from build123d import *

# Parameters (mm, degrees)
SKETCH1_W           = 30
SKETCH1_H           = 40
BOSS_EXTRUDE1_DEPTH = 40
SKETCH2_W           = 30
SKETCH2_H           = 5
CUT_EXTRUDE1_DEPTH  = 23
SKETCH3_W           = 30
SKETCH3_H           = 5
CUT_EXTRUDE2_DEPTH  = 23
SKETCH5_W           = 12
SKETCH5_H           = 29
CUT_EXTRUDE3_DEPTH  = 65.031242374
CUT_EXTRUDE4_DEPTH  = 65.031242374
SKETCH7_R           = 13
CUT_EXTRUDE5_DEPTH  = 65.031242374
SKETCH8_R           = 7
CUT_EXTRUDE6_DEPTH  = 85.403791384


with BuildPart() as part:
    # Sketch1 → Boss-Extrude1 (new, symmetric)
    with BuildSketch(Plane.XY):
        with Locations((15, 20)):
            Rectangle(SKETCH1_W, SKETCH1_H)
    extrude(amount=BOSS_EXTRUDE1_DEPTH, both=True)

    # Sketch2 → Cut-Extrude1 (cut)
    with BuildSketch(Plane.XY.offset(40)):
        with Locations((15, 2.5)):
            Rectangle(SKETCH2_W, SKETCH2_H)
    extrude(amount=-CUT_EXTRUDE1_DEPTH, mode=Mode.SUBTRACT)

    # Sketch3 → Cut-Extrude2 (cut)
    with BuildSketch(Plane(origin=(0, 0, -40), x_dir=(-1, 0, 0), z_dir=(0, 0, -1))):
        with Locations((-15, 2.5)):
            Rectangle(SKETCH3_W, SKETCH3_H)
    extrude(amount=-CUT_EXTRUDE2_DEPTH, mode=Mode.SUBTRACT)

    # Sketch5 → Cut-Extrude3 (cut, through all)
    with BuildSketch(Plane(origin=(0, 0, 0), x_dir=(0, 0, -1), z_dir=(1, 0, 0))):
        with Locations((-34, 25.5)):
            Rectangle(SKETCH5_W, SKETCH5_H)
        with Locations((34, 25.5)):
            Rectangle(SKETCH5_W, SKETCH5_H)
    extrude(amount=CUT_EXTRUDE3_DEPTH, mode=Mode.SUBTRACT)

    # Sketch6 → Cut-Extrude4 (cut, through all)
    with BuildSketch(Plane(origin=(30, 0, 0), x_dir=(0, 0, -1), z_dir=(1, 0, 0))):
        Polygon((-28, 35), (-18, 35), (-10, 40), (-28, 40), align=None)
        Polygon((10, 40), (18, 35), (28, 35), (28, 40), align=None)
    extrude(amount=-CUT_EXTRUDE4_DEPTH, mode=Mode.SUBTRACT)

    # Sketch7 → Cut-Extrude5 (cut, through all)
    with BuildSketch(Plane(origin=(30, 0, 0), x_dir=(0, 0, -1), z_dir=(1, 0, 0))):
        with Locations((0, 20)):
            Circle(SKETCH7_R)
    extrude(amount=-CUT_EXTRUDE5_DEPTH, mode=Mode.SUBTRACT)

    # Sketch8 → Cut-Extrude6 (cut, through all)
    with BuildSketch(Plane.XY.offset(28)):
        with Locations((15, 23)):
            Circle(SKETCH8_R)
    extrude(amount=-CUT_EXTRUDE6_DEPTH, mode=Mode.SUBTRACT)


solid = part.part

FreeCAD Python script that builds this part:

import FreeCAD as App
import Part
import Sketcher

doc = App.newDocument("Part")
params = doc.addObject("Spreadsheet::Sheet", "Params")
for row, (alias, value) in enumerate([
    ("sketch1_width", "30 mm"),
    ("sketch1_height", "40 mm"),
    ("pad1_length", "80 mm"),
    ("sketch2_width", "30 mm"),
    ("sketch2_height", "5 mm"),
    ("pocket1_length", "23 mm"),
    ("sketch3_width", "30 mm"),
    ("sketch3_height", "5 mm"),
    ("pocket2_length", "23 mm"),
    ("sketch4_width", "29 mm"),
    ("sketch4_height", "12 mm"),
    ("sketch5_width", "5 mm"),
    ("sketch5_height", "10 mm"),
    ("sketch5_height2", "18 mm"),
    ("sketch6_diameter", "26 mm"),
    ("sketch7_diameter", "14 mm"),
], start=1):
    params.set(f"A{row}", alias)
    params.set(f"B{row}", "=" + value)
    params.setAlias(f"B{row}", alias)

body = doc.addObject("PartDesign::Body", "Body")

# Sketch on XY plane
sketch1 = body.newObject("Sketcher::SketchObject", "Sketch")
sketch1.AttachmentSupport = (doc.getObject("XY_Plane"), [""])
sketch1.MapMode = "FlatFace"
sketch1.addGeometry(Part.LineSegment(App.Vector(0, 40, 0), App.Vector(0, 0, 0)), False)
sketch1.addGeometry(Part.LineSegment(App.Vector(0, 0, 0), App.Vector(30, 0, 0)), False)
sketch1.addGeometry(Part.LineSegment(App.Vector(30, 0, 0), App.Vector(30, 40, 0)), False)
sketch1.addGeometry(Part.LineSegment(App.Vector(30, 40, 0), App.Vector(0, 40, 0)), False)
sketch1.addConstraint(Sketcher.Constraint("Coincident", 0, 2, 1, 1))
sketch1.addConstraint(Sketcher.Constraint("Coincident", 1, 2, 2, 1))
sketch1.addConstraint(Sketcher.Constraint("Coincident", 2, 2, 3, 1))
sketch1.addConstraint(Sketcher.Constraint("Coincident", 3, 2, 0, 1))
sketch1.addConstraint(Sketcher.Constraint("Vertical", 0))
sketch1.addConstraint(Sketcher.Constraint("Horizontal", 1))
sketch1.addConstraint(Sketcher.Constraint("Vertical", 2))
sketch1.addConstraint(Sketcher.Constraint("Horizontal", 3))
sketch1.addConstraint(Sketcher.Constraint("Coincident", 0, 2, -1, 1))
sketch1.addConstraint(Sketcher.Constraint("DistanceX", 1, 1, 1, 2, 30.0))
sketch1.addConstraint(Sketcher.Constraint("DistanceY", 0, 2, 0, 1, 40.0))
sketch1.setExpression("Constraints[9]", "Params.sketch1_width")
sketch1.setExpression("Constraints[10]", "Params.sketch1_height")
pad1 = body.newObject("PartDesign::Pad", "Pad")
pad1.Profile = sketch1
pad1.setExpression("Length", "Params.pad1_length")
pad1.Midplane = True

# Sketch on XY plane
sketch2 = body.newObject("Sketcher::SketchObject", "Sketch001")
sketch2.AttachmentSupport = (doc.getObject("XY_Plane"), [""])
sketch2.MapMode = "FlatFace"
sketch2.AttachmentOffset = App.Placement(App.Vector(0, 0, 40), App.Rotation())
sketch2.addGeometry(Part.LineSegment(App.Vector(0, 5, 0), App.Vector(0, 0, 0)), False)
sketch2.addGeometry(Part.LineSegment(App.Vector(0, 0, 0), App.Vector(30, 0, 0)), False)
sketch2.addGeometry(Part.LineSegment(App.Vector(30, 0, 0), App.Vector(30, 5, 0)), False)
sketch2.addGeometry(Part.LineSegment(App.Vector(30, 5, 0), App.Vector(0, 5, 0)), False)
sketch2.addConstraint(Sketcher.Constraint("Coincident", 0, 2, 1, 1))
sketch2.addConstraint(Sketcher.Constraint("Coincident", 1, 2, 2, 1))
sketch2.addConstraint(Sketcher.Constraint("Coincident", 2, 2, 3, 1))
sketch2.addConstraint(Sketcher.Constraint("Coincident", 3, 2, 0, 1))
sketch2.addConstraint(Sketcher.Constraint("Vertical", 0))
sketch2.addConstraint(Sketcher.Constraint("Horizontal", 1))
sketch2.addConstraint(Sketcher.Constraint("Vertical", 2))
sketch2.addConstraint(Sketcher.Constraint("Horizontal", 3))
sketch2.addConstraint(Sketcher.Constraint("Coincident", 0, 2, -1, 1))
sketch2.addConstraint(Sketcher.Constraint("DistanceX", 1, 1, 1, 2, 30.0))
sketch2.addConstraint(Sketcher.Constraint("DistanceY", 0, 2, 0, 1, 5.0))
sketch2.setExpression("Constraints[9]", "Params.sketch2_width")
sketch2.setExpression("Constraints[10]", "Params.sketch2_height")
pocket1 = body.newObject("PartDesign::Pocket", "Pocket")
pocket1.Profile = sketch2
pocket1.setExpression("Length", "Params.pocket1_length")

# Sketch on XY plane
sketch3 = body.newObject("Sketcher::SketchObject", "Sketch002")
sketch3.AttachmentSupport = (doc.getObject("XY_Plane"), [""])
sketch3.MapMode = "FlatFace"
sketch3.AttachmentOffset = App.Placement(App.Vector(0, 0, -40), App.Rotation())
sketch3.addGeometry(Part.LineSegment(App.Vector(30, 5, 0), App.Vector(30, 0, 0)), False)
sketch3.addGeometry(Part.LineSegment(App.Vector(30, 0, 0), App.Vector(0, 0, 0)), False)
sketch3.addGeometry(Part.LineSegment(App.Vector(0, 0, 0), App.Vector(0, 5, 0)), False)
sketch3.addGeometry(Part.LineSegment(App.Vector(0, 5, 0), App.Vector(30, 5, 0)), False)
sketch3.addConstraint(Sketcher.Constraint("Coincident", 0, 2, 1, 1))
sketch3.addConstraint(Sketcher.Constraint("Coincident", 1, 2, 2, 1))
sketch3.addConstraint(Sketcher.Constraint("Coincident", 2, 2, 3, 1))
sketch3.addConstraint(Sketcher.Constraint("Coincident", 3, 2, 0, 1))
sketch3.addConstraint(Sketcher.Constraint("Vertical", 0))
sketch3.addConstraint(Sketcher.Constraint("Horizontal", 1))
sketch3.addConstraint(Sketcher.Constraint("Vertical", 2))
sketch3.addConstraint(Sketcher.Constraint("Horizontal", 3))
sketch3.addConstraint(Sketcher.Constraint("Coincident", 1, 2, -1, 1))
sketch3.addConstraint(Sketcher.Constraint("DistanceX", 1, 2, 1, 1, 30.0))
sketch3.addConstraint(Sketcher.Constraint("DistanceY", 0, 2, 0, 1, 5.0))
sketch3.setExpression("Constraints[9]", "Params.sketch3_width")
sketch3.setExpression("Constraints[10]", "Params.sketch3_height")
pocket2 = body.newObject("PartDesign::Pocket", "Pocket001")
pocket2.Profile = sketch3
pocket2.setExpression("Length", "Params.pocket2_length")
pocket2.Reversed = True

# Sketch on YZ plane
sketch4 = body.newObject("Sketcher::SketchObject", "Sketch003")
sketch4.AttachmentSupport = (doc.getObject("YZ_Plane"), [""])
sketch4.MapMode = "FlatFace"
sketch4.addGeometry(Part.LineSegment(App.Vector(40, 40, 0), App.Vector(11, 40, 0)), False)
sketch4.addGeometry(Part.LineSegment(App.Vector(11, 40, 0), App.Vector(11, 28, 0)), False)
sketch4.addGeometry(Part.LineSegment(App.Vector(11, 28, 0), App.Vector(40, 28, 0)), False)
sketch4.addGeometry(Part.LineSegment(App.Vector(40, 28, 0), App.Vector(40, 40, 0)), False)
sketch4.addGeometry(Part.LineSegment(App.Vector(40, -28, 0), App.Vector(11, -28, 0)), False)
sketch4.addGeometry(Part.LineSegment(App.Vector(11, -28, 0), App.Vector(11, -40, 0)), False)
sketch4.addGeometry(Part.LineSegment(App.Vector(11, -40, 0), App.Vector(40, -40, 0)), False)
sketch4.addGeometry(Part.LineSegment(App.Vector(40, -40, 0), App.Vector(40, -28, 0)), False)
sketch4.addConstraint(Sketcher.Constraint("Coincident", 0, 2, 1, 1))
sketch4.addConstraint(Sketcher.Constraint("Coincident", 1, 2, 2, 1))
sketch4.addConstraint(Sketcher.Constraint("Coincident", 2, 2, 3, 1))
sketch4.addConstraint(Sketcher.Constraint("Coincident", 3, 2, 0, 1))
sketch4.addConstraint(Sketcher.Constraint("Coincident", 4, 2, 5, 1))
sketch4.addConstraint(Sketcher.Constraint("Coincident", 5, 2, 6, 1))
sketch4.addConstraint(Sketcher.Constraint("Coincident", 6, 2, 7, 1))
sketch4.addConstraint(Sketcher.Constraint("Coincident", 7, 2, 4, 1))
sketch4.addConstraint(Sketcher.Constraint("Horizontal", 0))
sketch4.addConstraint(Sketcher.Constraint("Vertical", 1))
sketch4.addConstraint(Sketcher.Constraint("Horizontal", 2))
sketch4.addConstraint(Sketcher.Constraint("Vertical", 3))
sketch4.addConstraint(Sketcher.Constraint("Horizontal", 4))
sketch4.addConstraint(Sketcher.Constraint("Vertical", 5))
sketch4.addConstraint(Sketcher.Constraint("Horizontal", 6))
sketch4.addConstraint(Sketcher.Constraint("Vertical", 7))
sketch4.addConstraint(Sketcher.Constraint("Symmetric", 1, 2, 4, 2, -1))
sketch4.addConstraint(Sketcher.Constraint("Symmetric", 3, 2, 6, 2, -1))
sketch4.addConstraint(Sketcher.Constraint("DistanceX", 0, 2, 0, 1, 29.0))
sketch4.addConstraint(Sketcher.Constraint("DistanceY", 1, 2, 1, 1, 12.0))
sketch4.addConstraint(Sketcher.Constraint("DistanceX", -1, 1, 0, 2, 11.0))
sketch4.addConstraint(Sketcher.Constraint("DistanceY", -1, 1, 0, 2, 40.0))
sketch4.setExpression("Constraints[18]", "Params.sketch4_width")
sketch4.setExpression("Constraints[19]", "Params.sketch4_height")
pocket3 = body.newObject("PartDesign::Pocket", "Pocket002")
pocket3.Profile = sketch4
pocket3.Type = "ThroughAll"
pocket3.Reversed = True

# Sketch on YZ plane
sketch5 = body.newObject("Sketcher::SketchObject", "Sketch004")
sketch5.AttachmentSupport = (doc.getObject("YZ_Plane"), [""])
sketch5.MapMode = "FlatFace"
sketch5.AttachmentOffset = App.Placement(App.Vector(0, 0, 30), App.Rotation())
sketch5.addGeometry(Part.LineSegment(App.Vector(35, 28, 0), App.Vector(35, 18, 0)), False)
sketch5.addGeometry(Part.LineSegment(App.Vector(35, 18, 0), App.Vector(40, 10, 0)), False)
sketch5.addGeometry(Part.LineSegment(App.Vector(40, 10, 0), App.Vector(40, 28, 0)), False)
sketch5.addGeometry(Part.LineSegment(App.Vector(40, 28, 0), App.Vector(35, 28, 0)), False)
sketch5.addGeometry(Part.LineSegment(App.Vector(40, -10, 0), App.Vector(35, -18, 0)), False)
sketch5.addGeometry(Part.LineSegment(App.Vector(35, -18, 0), App.Vector(35, -28, 0)), False)
sketch5.addGeometry(Part.LineSegment(App.Vector(35, -28, 0), App.Vector(40, -28, 0)), False)
sketch5.addGeometry(Part.LineSegment(App.Vector(40, -28, 0), App.Vector(40, -10, 0)), False)
sketch5.addConstraint(Sketcher.Constraint("Coincident", 0, 2, 1, 1))
sketch5.addConstraint(Sketcher.Constraint("Coincident", 1, 2, 2, 1))
sketch5.addConstraint(Sketcher.Constraint("Coincident", 2, 2, 3, 1))
sketch5.addConstraint(Sketcher.Constraint("Coincident", 3, 2, 0, 1))
sketch5.addConstraint(Sketcher.Constraint("Coincident", 4, 2, 5, 1))
sketch5.addConstraint(Sketcher.Constraint("Coincident", 5, 2, 6, 1))
sketch5.addConstraint(Sketcher.Constraint("Coincident", 6, 2, 7, 1))
sketch5.addConstraint(Sketcher.Constraint("Coincident", 7, 2, 4, 1))
sketch5.addConstraint(Sketcher.Constraint("Vertical", 0))
sketch5.addConstraint(Sketcher.Constraint("Vertical", 2))
sketch5.addConstraint(Sketcher.Constraint("Horizontal", 3))
sketch5.addConstraint(Sketcher.Constraint("Vertical", 5))
sketch5.addConstraint(Sketcher.Constraint("Horizontal", 6))
sketch5.addConstraint(Sketcher.Constraint("Vertical", 7))
sketch5.addConstraint(Sketcher.Constraint("Symmetric", 0, 2, 4, 2, -1))
sketch5.addConstraint(Sketcher.Constraint("Symmetric", 2, 2, 6, 2, -1))
sketch5.addConstraint(Sketcher.Constraint("Equal", 2, 7))
sketch5.addConstraint(Sketcher.Constraint("DistanceX", 3, 2, 3, 1, 5.0))
sketch5.addConstraint(Sketcher.Constraint("DistanceY", 0, 2, 0, 1, 10.0))
sketch5.addConstraint(Sketcher.Constraint("DistanceY", 2, 1, 2, 2, 18.0))
sketch5.addConstraint(Sketcher.Constraint("DistanceX", -1, 1, 0, 2, 35.0))
sketch5.addConstraint(Sketcher.Constraint("DistanceY", -1, 1, 0, 2, 18.0))
sketch5.setExpression("Constraints[17]", "Params.sketch5_width")
sketch5.setExpression("Constraints[18]", "Params.sketch5_height")
sketch5.setExpression("Constraints[19]", "Params.sketch5_height2")
pocket4 = body.newObject("PartDesign::Pocket", "Pocket003")
pocket4.Profile = sketch5
pocket4.Type = "ThroughAll"

# Sketch on YZ plane
sketch6 = body.newObject("Sketcher::SketchObject", "Sketch005")
sketch6.AttachmentSupport = (doc.getObject("YZ_Plane"), [""])
sketch6.MapMode = "FlatFace"
sketch6.AttachmentOffset = App.Placement(App.Vector(0, 0, 30), App.Rotation())
sketch6.addGeometry(Part.Circle(App.Vector(20, 0, 0), App.Vector(0, 0, 1), 13), False)
sketch6.addConstraint(Sketcher.Constraint("PointOnObject", 0, 3, -1))
sketch6.addConstraint(Sketcher.Constraint("Diameter", 0, 26.0))
sketch6.addConstraint(Sketcher.Constraint("DistanceX", -1, 1, 0, 3, 20.0))
sketch6.setExpression("Constraints[1]", "Params.sketch6_diameter")
pocket5 = body.newObject("PartDesign::Pocket", "Pocket004")
pocket5.Profile = sketch6
pocket5.Type = "ThroughAll"

# Sketch on XY plane
sketch7 = body.newObject("Sketcher::SketchObject", "Sketch006")
sketch7.AttachmentSupport = (doc.getObject("XY_Plane"), [""])
sketch7.MapMode = "FlatFace"
sketch7.AttachmentOffset = App.Placement(App.Vector(0, 0, 28), App.Rotation())
sketch7.addGeometry(Part.Circle(App.Vector(15, 23, 0), App.Vector(0, 0, 1), 7), False)
sketch7.addConstraint(Sketcher.Constraint("Diameter", 0, 14.0))
sketch7.addConstraint(Sketcher.Constraint("DistanceX", -1, 1, 0, 3, 15.0))
sketch7.addConstraint(Sketcher.Constraint("DistanceY", -1, 1, 0, 3, 23.0))
sketch7.setExpression("Constraints[0]", "Params.sketch7_diameter")
pocket6 = body.newObject("PartDesign::Pocket", "Pocket005")
pocket6.Profile = sketch7
pocket6.Type = "ThroughAll"

doc.recompute()
